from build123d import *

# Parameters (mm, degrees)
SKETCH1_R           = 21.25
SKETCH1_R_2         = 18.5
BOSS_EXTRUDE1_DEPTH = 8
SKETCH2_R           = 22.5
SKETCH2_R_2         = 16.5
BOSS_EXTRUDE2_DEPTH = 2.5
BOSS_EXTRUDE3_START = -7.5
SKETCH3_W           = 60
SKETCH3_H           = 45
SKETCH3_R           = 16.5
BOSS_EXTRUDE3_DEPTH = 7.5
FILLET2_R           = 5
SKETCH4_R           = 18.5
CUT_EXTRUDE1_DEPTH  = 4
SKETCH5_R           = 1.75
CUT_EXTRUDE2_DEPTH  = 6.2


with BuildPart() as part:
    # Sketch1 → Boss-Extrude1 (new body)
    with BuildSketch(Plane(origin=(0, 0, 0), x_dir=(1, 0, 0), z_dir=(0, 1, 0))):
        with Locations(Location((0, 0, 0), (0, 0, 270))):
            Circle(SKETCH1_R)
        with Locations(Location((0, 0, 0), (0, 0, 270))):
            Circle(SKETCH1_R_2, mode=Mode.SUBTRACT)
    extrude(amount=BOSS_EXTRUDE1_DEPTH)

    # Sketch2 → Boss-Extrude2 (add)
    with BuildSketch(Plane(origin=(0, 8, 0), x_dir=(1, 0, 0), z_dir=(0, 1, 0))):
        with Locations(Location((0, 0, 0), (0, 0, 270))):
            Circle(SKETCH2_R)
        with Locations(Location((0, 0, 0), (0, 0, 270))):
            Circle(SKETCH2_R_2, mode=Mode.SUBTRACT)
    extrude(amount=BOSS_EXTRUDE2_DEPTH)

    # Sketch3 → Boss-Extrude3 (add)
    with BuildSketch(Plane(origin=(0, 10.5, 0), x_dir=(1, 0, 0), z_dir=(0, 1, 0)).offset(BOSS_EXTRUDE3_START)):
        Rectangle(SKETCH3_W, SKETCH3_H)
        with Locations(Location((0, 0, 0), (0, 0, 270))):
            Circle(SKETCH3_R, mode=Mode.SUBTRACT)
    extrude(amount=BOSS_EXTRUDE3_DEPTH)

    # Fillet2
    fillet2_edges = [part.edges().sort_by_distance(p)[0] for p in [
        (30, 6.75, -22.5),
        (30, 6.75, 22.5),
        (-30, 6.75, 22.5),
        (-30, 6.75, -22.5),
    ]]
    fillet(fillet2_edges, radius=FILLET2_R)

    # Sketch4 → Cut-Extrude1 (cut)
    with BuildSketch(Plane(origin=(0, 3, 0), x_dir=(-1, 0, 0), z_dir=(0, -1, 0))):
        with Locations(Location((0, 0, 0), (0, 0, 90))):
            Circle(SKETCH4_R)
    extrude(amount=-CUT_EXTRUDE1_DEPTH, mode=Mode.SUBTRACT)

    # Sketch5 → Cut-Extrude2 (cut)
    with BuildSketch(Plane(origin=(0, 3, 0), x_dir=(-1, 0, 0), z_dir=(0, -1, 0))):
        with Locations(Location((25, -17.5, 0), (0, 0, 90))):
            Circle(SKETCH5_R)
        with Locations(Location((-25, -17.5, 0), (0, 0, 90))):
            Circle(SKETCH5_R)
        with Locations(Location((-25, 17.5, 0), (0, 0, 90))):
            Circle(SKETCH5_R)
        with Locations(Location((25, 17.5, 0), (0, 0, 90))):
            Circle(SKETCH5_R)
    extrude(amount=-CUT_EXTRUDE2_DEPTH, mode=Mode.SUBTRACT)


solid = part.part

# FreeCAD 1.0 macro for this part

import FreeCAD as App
import Part
import Sketcher

V = App.Vector
Q = App.Units.Quantity


def edges_at(feature, points):
    """Names of the edges that pass closest to the given points."""
    edges = feature.Shape.Edges
    near = lambda p: min(range(len(edges)), key=lambda i: edges[i].distToShape(Part.Vertex(*p))[0])
    return sorted({f"Edge{near(p) + 1}" for p in points})


def add_polygon(sketch, points):
    """Adds a closed chain of lines whose ends are joined by coincident constraints."""
    first, n = sketch.GeometryCount, len(points)
    for a, b in zip(points, points[1:] + points[:1]):
        sketch.addGeometry(Part.LineSegment(App.Vector(*a, 0), App.Vector(*b, 0)), False)
    for i in range(n):
        sketch.addConstraint(Sketcher.Constraint("Coincident", first + i, 2, first + (i + 1) % n, 1))

doc = App.newDocument("Part")
params = doc.addObject("Spreadsheet::Sheet", "Params")
for row, (alias, value) in enumerate([
    ("sketch1_diameter", "37 mm"),
    ("sketch1_diameter2", "42.5 mm"),
    ("pad1_length", "8 mm"),
    ("sketch2_diameter", "45 mm"),
    ("sketch2_diameter2", "33 mm"),
    ("pad2_length", "2.5 mm"),
    ("sketch3_diameter", "33 mm"),
    ("sketch3_width", "60 mm"),
    ("sketch3_height", "45 mm"),
    ("pad3_length", "7.5 mm"),
    ("fillet_radius", "5 mm"),
    ("sketch4_diameter", "37 mm"),
    ("pocket1_length", "4 mm"),
    ("sketch5_diameter", "3.5 mm"),
    ("pocket2_length", "6.2 mm"),
], start=1):
    params.set(f"A{row}", alias)
    params.set(f"B{row}", "=" + value)
    params.setAlias(f"B{row}", alias)

body = doc.addObject("PartDesign::Body", "Body")

# Sketch on XZ plane
sketch1 = body.newObject("Sketcher::SketchObject", "Sketch")
sketch1.AttachmentSupport = (doc.getObject("XZ_Plane"), [""])
sketch1.MapMode = "FlatFace"
sketch1.addGeometry(Part.Circle(V(0, 0, 0), V(0, 0, 1), 21.25), False)
sketch1.addGeometry(Part.Circle(V(0, 0, 0), V(0, 0, 1), 18.5), False)
sketch1.addConstraint(Sketcher.Constraint("Coincident", 0, 3, -1, 1))
sketch1.addConstraint(Sketcher.Constraint("Coincident", 1, 3, -1, 1))
sketch1.addConstraint(Sketcher.Constraint("Diameter", 1, Q("37 mm")))
sketch1.addConstraint(Sketcher.Constraint("Diameter", 0, Q("42.5 mm")))
sketch1.setExpression("Constraints[2]", "Params.sketch1_diameter")
sketch1.setExpression("Constraints[3]", "Params.sketch1_diameter2")
pad1 = body.newObject("PartDesign::Pad", "Pad")
pad1.Profile = sketch1
pad1.setExpression("Length", "Params.pad1_length")
pad1.Reversed = True

# Sketch on XZ plane
sketch2 = body.newObject("Sketcher::SketchObject", "Sketch001")
sketch2.AttachmentSupport = (doc.getObject("XZ_Plane"), [""])
sketch2.MapMode = "FlatFace"
sketch2.AttachmentOffset = App.Placement(V(0, 0, -8), App.Rotation())
sketch2.addGeometry(Part.Circle(V(0, 0, 0), V(0, 0, 1), 22.5), False)
sketch2.addGeometry(Part.Circle(V(0, 0, 0), V(0, 0, 1), 16.5), False)
sketch2.addConstraint(Sketcher.Constraint("Coincident", 0, 3, -1, 1))
sketch2.addConstraint(Sketcher.Constraint("Coincident", 1, 3, -1, 1))
sketch2.addConstraint(Sketcher.Constraint("Diameter", 0, Q("45 mm")))
sketch2.addConstraint(Sketcher.Constraint("Diameter", 1, Q("33 mm")))
sketch2.setExpression("Constraints[2]", "Params.sketch2_diameter")
sketch2.setExpression("Constraints[3]", "Params.sketch2_diameter2")
pad2 = body.newObject("PartDesign::Pad", "Pad001")
pad2.Profile = sketch2
pad2.setExpression("Length", "Params.pad2_length")
pad2.Reversed = True

# Sketch on XZ plane
sketch3 = body.newObject("Sketcher::SketchObject", "Sketch002")
sketch3.AttachmentSupport = (doc.getObject("XZ_Plane"), [""])
sketch3.MapMode = "FlatFace"
sketch3.AttachmentOffset = App.Placement(V(0, 0, -3), App.Rotation())
add_polygon(sketch3, [(-30, -22.5), (-30, 22.5), (30, 22.5), (30, -22.5)])  # lines 0-3
sketch3.addGeometry(Part.Circle(V(0, 0, 0), V(0, 0, 1), 16.5), False)  # 4
sketch3.addConstraint(Sketcher.Constraint("Vertical", 0))
sketch3.addConstraint(Sketcher.Constraint("Horizontal", 1))
sketch3.addConstraint(Sketcher.Constraint("Vertical", 2))
sketch3.addConstraint(Sketcher.Constraint("Horizontal", 3))
sketch3.addConstraint(Sketcher.Constraint("Coincident", 4, 3, -1, 1))
sketch3.addConstraint(Sketcher.Constraint("Symmetric", 0, 2, 2, 2, -1, 1))
sketch3.addConstraint(Sketcher.Constraint("Diameter", 4, Q("33 mm")))
sketch3.addConstraint(Sketcher.Constraint("DistanceX", 1, 1, 1, 2, Q("60 mm")))
sketch3.addConstraint(Sketcher.Constraint("DistanceY", 0, 1, 0, 2, Q("45 mm")))
sketch3.setExpression("Constraints[10]", "Params.sketch3_diameter")
sketch3.setExpression("Constraints[11]", "Params.sketch3_width")
sketch3.setExpression("Constraints[12]", "Params.sketch3_height")
pad3 = body.newObject("PartDesign::Pad", "Pad002")
pad3.Profile = sketch3
pad3.setExpression("Length", "Params.pad3_length")
pad3.Reversed = True
doc.recompute()

fillet = body.newObject("PartDesign::Fillet", "Fillet")
fillet.Base = (pad3, edges_at(pad3, [
    (30, 6.75, -22.5),
    (30, 6.75, 22.5),
    (-30, 6.75, 22.5),
    (-30, 6.75, -22.5),
]))
fillet.setExpression("Radius", "Params.fillet_radius")

# Sketch on XZ plane
sketch4 = body.newObject("Sketcher::SketchObject", "Sketch003")
sketch4.AttachmentSupport = (doc.getObject("XZ_Plane"), [""])
sketch4.MapMode = "FlatFace"
sketch4.AttachmentOffset = App.Placement(V(0, 0, -3), App.Rotation())
sketch4.addGeometry(Part.Circle(V(0, 0, 0), V(0, 0, 1), 18.5), False)
sketch4.addConstraint(Sketcher.Constraint("Coincident", 0, 3, -1, 1))
sketch4.addConstraint(Sketcher.Constraint("Diameter", 0, Q("37 mm")))
sketch4.setExpression("Constraints[1]", "Params.sketch4_diameter")
pocket1 = body.newObject("PartDesign::Pocket", "Pocket")
pocket1.Profile = sketch4
pocket1.setExpression("Length", "Params.pocket1_length")

# Sketch on XZ plane
sketch5 = body.newObject("Sketcher::SketchObject", "Sketch004")
sketch5.AttachmentSupport = (doc.getObject("XZ_Plane"), [""])
sketch5.MapMode = "FlatFace"
sketch5.AttachmentOffset = App.Placement(V(0, 0, -3), App.Rotation())
sketch5.addGeometry(Part.Circle(V(-25, 17.5, 0), V(0, 0, 1), 1.75), False)
sketch5.addGeometry(Part.Circle(V(25, 17.5, 0), V(0, 0, 1), 1.75), False)
sketch5.addGeometry(Part.Circle(V(25, -17.5, 0), V(0, 0, 1), 1.75), False)
sketch5.addGeometry(Part.Circle(V(-25, -17.5, 0), V(0, 0, 1), 1.75), False)
sketch5.addConstraint(Sketcher.Constraint("Equal", 0, 1))
sketch5.addConstraint(Sketcher.Constraint("Equal", 1, 2))
sketch5.addConstraint(Sketcher.Constraint("Equal", 2, 3))
sketch5.addConstraint(Sketcher.Constraint("Symmetric", 0, 3, 2, 3, -1, 1))
sketch5.addConstraint(Sketcher.Constraint("Symmetric", 1, 3, 3, 3, -1, 1))
sketch5.addConstraint(Sketcher.Constraint("Symmetric", 0, 3, 1, 3, -2))
sketch5.addConstraint(Sketcher.Constraint("Diameter", 0, Q("3.5 mm")))
sketch5.addConstraint(Sketcher.Constraint("DistanceX", 0, 3, -1, 1, Q("25 mm")))
sketch5.addConstraint(Sketcher.Constraint("DistanceY", 2, 3, 1, 3, Q("35 mm")))
sketch5.setExpression("Constraints[6]", "Params.sketch5_diameter")
pocket2 = body.newObject("PartDesign::Pocket", "Pocket001")
pocket2.Profile = sketch5
pocket2.setExpression("Length", "Params.pocket2_length")

doc.recompute()
